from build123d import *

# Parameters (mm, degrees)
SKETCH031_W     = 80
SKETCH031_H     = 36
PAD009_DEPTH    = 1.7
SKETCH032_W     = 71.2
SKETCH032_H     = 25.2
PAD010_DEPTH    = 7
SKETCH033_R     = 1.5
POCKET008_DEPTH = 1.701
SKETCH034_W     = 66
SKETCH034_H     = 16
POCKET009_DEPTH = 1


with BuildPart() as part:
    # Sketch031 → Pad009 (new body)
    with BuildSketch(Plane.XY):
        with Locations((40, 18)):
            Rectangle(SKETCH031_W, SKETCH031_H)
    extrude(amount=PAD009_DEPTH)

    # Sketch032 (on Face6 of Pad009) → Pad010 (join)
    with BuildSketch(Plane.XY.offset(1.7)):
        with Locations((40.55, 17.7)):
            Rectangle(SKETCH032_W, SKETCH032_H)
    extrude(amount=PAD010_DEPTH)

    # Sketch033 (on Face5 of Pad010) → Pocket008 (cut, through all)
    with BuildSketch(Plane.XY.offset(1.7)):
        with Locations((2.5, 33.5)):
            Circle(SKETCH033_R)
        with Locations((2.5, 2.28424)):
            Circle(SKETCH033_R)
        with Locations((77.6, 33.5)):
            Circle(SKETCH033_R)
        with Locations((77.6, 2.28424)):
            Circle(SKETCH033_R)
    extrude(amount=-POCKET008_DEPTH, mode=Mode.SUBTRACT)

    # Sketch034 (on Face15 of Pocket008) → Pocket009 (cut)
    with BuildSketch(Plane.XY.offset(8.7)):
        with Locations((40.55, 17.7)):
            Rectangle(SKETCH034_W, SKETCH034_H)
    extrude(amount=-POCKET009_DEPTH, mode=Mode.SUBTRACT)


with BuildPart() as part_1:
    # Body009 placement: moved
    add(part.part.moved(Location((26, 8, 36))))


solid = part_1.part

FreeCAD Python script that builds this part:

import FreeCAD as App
import Part
import Sketcher

V = App.Vector


def add_polygon(sketch, points):
    """Adds a closed chain of lines whose ends are joined by coincident constraints."""
    first, n = sketch.GeometryCount, len(points)
    for a, b in zip(points, points[1:] + points[:1]):
        sketch.addGeometry(Part.LineSegment(App.Vector(*a, 0), App.Vector(*b, 0)), False)
    for i in range(n):
        sketch.addConstraint(Sketcher.Constraint("Coincident", first + i, 2, first + (i + 1) % n, 1))

doc = App.newDocument("Part")
body = doc.addObject("PartDesign::Body", "Body")

# Sketch on XY plane
sketch1 = body.newObject("Sketcher::SketchObject", "Sketch")
sketch1.AttachmentSupport = (doc.getObject("XY_Plane"), [""])
sketch1.MapMode = "FlatFace"
add_polygon(sketch1, [(0, 36), (0, 0), (80, 0), (80, 36)])  # lines 0-3
sketch1.addConstraint(Sketcher.Constraint("Vertical", 0))
sketch1.addConstraint(Sketcher.Constraint("Horizontal", 1))
sketch1.addConstraint(Sketcher.Constraint("Vertical", 2))
sketch1.addConstraint(Sketcher.Constraint("Horizontal", 3))
sketch1.addConstraint(Sketcher.Constraint("Coincident", 0, 2, -1, 1))
sketch1.addConstraint(Sketcher.Constraint("DistanceX", 1, 1, 1, 2, 80.0))
sketch1.addConstraint(Sketcher.Constraint("DistanceY", 0, 2, 0, 1, 36.0))
pad1 = body.newObject("PartDesign::Pad", "Pad")
pad1.Profile = sketch1
pad1.Length = 1.7

# Sketch on XY plane
sketch2 = body.newObject("Sketcher::SketchObject", "Sketch001")
sketch2.AttachmentSupport = (doc.getObject("XY_Plane"), [""])
sketch2.MapMode = "FlatFace"
sketch2.AttachmentOffset = App.Placement(V(0, 0, 1.7), App.Rotation())
add_polygon(sketch2, [(5, 30), (5, 5), (76, 5), (76, 30)])  # lines 0-3
sketch2.addConstraint(Sketcher.Constraint("Vertical", 0))
sketch2.addConstraint(Sketcher.Constraint("Horizontal", 1))
sketch2.addConstraint(Sketcher.Constraint("Vertical", 2))
sketch2.addConstraint(Sketcher.Constraint("Horizontal", 3))
sketch2.addConstraint(Sketcher.Constraint("DistanceX", 1, 1, 1, 2, 71.2))
sketch2.addConstraint(Sketcher.Constraint("DistanceY", 0, 2, 0, 1, 25.2))
sketch2.addConstraint(Sketcher.Constraint("DistanceY", -1, 1, 0, 2, 5.1))
sketch2.addConstraint(Sketcher.Constraint("DistanceX", -1, 1, 0, 2, 4.95))
pad2 = body.newObject("PartDesign::Pad", "Pad001")
pad2.Profile = sketch2
pad2.Length = 7

# Sketch on XY plane
sketch3 = body.newObject("Sketcher::SketchObject", "Sketch002")
sketch3.AttachmentSupport = (doc.getObject("XY_Plane"), [""])
sketch3.MapMode = "FlatFace"
sketch3.AttachmentOffset = App.Placement(V(0, 0, 1.7), App.Rotation())
sketch3.addGeometry(Part.Circle(V(2.5, 33.5, 0), V(0, 0, 1), 1.5), False)
sketch3.addGeometry(Part.Circle(V(2.5, 2.3, 0), V(0, 0, 1), 1.5), False)
sketch3.addGeometry(Part.Circle(V(77.6, 33.5, 0), V(0, 0, 1), 1.5), False)
sketch3.addGeometry(Part.Circle(V(77.6, 2.3, 0), V(0, 0, 1), 1.5), False)
sketch3.addConstraint(Sketcher.Constraint("Equal", 0, 1))
sketch3.addConstraint(Sketcher.Constraint("Equal", 1, 2))
sketch3.addConstraint(Sketcher.Constraint("Equal", 2, 3))
sketch3.addConstraint(Sketcher.Constraint("Horizontal", 0, 3, 2, 3))
sketch3.addConstraint(Sketcher.Constraint("Horizontal", 1, 3, 3, 3))
sketch3.addConstraint(Sketcher.Constraint("Vertical", 0, 3, 1, 3))
sketch3.addConstraint(Sketcher.Constraint("Vertical", 2, 3, 3, 3))
sketch3.addConstraint(Sketcher.Constraint("Diameter", 0, 3.0))
sketch3.addConstraint(Sketcher.Constraint("DistanceX", -1, 1, 0, 3, 2.5))
sketch3.addConstraint(Sketcher.Constraint("DistanceY", -1, 1, 0, 3, 33.5))
sketch3.addConstraint(Sketcher.Constraint("DistanceX", -1, 1, 2, 3, 77.6))
sketch3.addConstraint(Sketcher.Constraint("DistanceY", -1, 1, 1, 3, 2.28424))
pocket1 = body.newObject("PartDesign::Pocket", "Pocket")
pocket1.Profile = sketch3
pocket1.Type = "ThroughAll"

# Sketch on XY plane
sketch4 = body.newObject("Sketcher::SketchObject", "Sketch003")
sketch4.AttachmentSupport = (doc.getObject("XY_Plane"), [""])
sketch4.MapMode = "FlatFace"
sketch4.AttachmentOffset = App.Placement(V(0, 0, 8.7), App.Rotation())
add_polygon(sketch4, [(8, 26), (8, 10), (74, 10), (74, 26)])  # lines 0-3
sketch4.addConstraint(Sketcher.Constraint("Vertical", 0))
sketch4.addConstraint(Sketcher.Constraint("Horizontal", 1))
sketch4.addConstraint(Sketcher.Constraint("Vertical", 2))
sketch4.addConstraint(Sketcher.Constraint("Horizontal", 3))
sketch4.addConstraint(Sketcher.Constraint("DistanceX", 1, 1, 1, 2, 66.0))
sketch4.addConstraint(Sketcher.Constraint("DistanceY", 0, 2, 0, 1, 16.0))
sketch4.addConstraint(Sketcher.Constraint("DistanceY", -1, 1, 0, 2, 9.7))
sketch4.addConstraint(Sketcher.Constraint("DistanceX", -1, 1, 0, 2, 7.55))
pocket2 = body.newObject("PartDesign::Pocket", "Pocket001")
pocket2.Profile = sketch4
pocket2.Length = 1
body2 = doc.addObject("PartDesign::Body", "Body001")
doc.recompute()

body.Placement = App.Placement(V(26, 8, 36), App.Rotation(V(0, 0, 1), 0))
boolean = body2.newObject("PartDesign::Boolean", "Boolean")
boolean.Type = "Fuse"
boolean.addObjects([body])

doc.recompute()
